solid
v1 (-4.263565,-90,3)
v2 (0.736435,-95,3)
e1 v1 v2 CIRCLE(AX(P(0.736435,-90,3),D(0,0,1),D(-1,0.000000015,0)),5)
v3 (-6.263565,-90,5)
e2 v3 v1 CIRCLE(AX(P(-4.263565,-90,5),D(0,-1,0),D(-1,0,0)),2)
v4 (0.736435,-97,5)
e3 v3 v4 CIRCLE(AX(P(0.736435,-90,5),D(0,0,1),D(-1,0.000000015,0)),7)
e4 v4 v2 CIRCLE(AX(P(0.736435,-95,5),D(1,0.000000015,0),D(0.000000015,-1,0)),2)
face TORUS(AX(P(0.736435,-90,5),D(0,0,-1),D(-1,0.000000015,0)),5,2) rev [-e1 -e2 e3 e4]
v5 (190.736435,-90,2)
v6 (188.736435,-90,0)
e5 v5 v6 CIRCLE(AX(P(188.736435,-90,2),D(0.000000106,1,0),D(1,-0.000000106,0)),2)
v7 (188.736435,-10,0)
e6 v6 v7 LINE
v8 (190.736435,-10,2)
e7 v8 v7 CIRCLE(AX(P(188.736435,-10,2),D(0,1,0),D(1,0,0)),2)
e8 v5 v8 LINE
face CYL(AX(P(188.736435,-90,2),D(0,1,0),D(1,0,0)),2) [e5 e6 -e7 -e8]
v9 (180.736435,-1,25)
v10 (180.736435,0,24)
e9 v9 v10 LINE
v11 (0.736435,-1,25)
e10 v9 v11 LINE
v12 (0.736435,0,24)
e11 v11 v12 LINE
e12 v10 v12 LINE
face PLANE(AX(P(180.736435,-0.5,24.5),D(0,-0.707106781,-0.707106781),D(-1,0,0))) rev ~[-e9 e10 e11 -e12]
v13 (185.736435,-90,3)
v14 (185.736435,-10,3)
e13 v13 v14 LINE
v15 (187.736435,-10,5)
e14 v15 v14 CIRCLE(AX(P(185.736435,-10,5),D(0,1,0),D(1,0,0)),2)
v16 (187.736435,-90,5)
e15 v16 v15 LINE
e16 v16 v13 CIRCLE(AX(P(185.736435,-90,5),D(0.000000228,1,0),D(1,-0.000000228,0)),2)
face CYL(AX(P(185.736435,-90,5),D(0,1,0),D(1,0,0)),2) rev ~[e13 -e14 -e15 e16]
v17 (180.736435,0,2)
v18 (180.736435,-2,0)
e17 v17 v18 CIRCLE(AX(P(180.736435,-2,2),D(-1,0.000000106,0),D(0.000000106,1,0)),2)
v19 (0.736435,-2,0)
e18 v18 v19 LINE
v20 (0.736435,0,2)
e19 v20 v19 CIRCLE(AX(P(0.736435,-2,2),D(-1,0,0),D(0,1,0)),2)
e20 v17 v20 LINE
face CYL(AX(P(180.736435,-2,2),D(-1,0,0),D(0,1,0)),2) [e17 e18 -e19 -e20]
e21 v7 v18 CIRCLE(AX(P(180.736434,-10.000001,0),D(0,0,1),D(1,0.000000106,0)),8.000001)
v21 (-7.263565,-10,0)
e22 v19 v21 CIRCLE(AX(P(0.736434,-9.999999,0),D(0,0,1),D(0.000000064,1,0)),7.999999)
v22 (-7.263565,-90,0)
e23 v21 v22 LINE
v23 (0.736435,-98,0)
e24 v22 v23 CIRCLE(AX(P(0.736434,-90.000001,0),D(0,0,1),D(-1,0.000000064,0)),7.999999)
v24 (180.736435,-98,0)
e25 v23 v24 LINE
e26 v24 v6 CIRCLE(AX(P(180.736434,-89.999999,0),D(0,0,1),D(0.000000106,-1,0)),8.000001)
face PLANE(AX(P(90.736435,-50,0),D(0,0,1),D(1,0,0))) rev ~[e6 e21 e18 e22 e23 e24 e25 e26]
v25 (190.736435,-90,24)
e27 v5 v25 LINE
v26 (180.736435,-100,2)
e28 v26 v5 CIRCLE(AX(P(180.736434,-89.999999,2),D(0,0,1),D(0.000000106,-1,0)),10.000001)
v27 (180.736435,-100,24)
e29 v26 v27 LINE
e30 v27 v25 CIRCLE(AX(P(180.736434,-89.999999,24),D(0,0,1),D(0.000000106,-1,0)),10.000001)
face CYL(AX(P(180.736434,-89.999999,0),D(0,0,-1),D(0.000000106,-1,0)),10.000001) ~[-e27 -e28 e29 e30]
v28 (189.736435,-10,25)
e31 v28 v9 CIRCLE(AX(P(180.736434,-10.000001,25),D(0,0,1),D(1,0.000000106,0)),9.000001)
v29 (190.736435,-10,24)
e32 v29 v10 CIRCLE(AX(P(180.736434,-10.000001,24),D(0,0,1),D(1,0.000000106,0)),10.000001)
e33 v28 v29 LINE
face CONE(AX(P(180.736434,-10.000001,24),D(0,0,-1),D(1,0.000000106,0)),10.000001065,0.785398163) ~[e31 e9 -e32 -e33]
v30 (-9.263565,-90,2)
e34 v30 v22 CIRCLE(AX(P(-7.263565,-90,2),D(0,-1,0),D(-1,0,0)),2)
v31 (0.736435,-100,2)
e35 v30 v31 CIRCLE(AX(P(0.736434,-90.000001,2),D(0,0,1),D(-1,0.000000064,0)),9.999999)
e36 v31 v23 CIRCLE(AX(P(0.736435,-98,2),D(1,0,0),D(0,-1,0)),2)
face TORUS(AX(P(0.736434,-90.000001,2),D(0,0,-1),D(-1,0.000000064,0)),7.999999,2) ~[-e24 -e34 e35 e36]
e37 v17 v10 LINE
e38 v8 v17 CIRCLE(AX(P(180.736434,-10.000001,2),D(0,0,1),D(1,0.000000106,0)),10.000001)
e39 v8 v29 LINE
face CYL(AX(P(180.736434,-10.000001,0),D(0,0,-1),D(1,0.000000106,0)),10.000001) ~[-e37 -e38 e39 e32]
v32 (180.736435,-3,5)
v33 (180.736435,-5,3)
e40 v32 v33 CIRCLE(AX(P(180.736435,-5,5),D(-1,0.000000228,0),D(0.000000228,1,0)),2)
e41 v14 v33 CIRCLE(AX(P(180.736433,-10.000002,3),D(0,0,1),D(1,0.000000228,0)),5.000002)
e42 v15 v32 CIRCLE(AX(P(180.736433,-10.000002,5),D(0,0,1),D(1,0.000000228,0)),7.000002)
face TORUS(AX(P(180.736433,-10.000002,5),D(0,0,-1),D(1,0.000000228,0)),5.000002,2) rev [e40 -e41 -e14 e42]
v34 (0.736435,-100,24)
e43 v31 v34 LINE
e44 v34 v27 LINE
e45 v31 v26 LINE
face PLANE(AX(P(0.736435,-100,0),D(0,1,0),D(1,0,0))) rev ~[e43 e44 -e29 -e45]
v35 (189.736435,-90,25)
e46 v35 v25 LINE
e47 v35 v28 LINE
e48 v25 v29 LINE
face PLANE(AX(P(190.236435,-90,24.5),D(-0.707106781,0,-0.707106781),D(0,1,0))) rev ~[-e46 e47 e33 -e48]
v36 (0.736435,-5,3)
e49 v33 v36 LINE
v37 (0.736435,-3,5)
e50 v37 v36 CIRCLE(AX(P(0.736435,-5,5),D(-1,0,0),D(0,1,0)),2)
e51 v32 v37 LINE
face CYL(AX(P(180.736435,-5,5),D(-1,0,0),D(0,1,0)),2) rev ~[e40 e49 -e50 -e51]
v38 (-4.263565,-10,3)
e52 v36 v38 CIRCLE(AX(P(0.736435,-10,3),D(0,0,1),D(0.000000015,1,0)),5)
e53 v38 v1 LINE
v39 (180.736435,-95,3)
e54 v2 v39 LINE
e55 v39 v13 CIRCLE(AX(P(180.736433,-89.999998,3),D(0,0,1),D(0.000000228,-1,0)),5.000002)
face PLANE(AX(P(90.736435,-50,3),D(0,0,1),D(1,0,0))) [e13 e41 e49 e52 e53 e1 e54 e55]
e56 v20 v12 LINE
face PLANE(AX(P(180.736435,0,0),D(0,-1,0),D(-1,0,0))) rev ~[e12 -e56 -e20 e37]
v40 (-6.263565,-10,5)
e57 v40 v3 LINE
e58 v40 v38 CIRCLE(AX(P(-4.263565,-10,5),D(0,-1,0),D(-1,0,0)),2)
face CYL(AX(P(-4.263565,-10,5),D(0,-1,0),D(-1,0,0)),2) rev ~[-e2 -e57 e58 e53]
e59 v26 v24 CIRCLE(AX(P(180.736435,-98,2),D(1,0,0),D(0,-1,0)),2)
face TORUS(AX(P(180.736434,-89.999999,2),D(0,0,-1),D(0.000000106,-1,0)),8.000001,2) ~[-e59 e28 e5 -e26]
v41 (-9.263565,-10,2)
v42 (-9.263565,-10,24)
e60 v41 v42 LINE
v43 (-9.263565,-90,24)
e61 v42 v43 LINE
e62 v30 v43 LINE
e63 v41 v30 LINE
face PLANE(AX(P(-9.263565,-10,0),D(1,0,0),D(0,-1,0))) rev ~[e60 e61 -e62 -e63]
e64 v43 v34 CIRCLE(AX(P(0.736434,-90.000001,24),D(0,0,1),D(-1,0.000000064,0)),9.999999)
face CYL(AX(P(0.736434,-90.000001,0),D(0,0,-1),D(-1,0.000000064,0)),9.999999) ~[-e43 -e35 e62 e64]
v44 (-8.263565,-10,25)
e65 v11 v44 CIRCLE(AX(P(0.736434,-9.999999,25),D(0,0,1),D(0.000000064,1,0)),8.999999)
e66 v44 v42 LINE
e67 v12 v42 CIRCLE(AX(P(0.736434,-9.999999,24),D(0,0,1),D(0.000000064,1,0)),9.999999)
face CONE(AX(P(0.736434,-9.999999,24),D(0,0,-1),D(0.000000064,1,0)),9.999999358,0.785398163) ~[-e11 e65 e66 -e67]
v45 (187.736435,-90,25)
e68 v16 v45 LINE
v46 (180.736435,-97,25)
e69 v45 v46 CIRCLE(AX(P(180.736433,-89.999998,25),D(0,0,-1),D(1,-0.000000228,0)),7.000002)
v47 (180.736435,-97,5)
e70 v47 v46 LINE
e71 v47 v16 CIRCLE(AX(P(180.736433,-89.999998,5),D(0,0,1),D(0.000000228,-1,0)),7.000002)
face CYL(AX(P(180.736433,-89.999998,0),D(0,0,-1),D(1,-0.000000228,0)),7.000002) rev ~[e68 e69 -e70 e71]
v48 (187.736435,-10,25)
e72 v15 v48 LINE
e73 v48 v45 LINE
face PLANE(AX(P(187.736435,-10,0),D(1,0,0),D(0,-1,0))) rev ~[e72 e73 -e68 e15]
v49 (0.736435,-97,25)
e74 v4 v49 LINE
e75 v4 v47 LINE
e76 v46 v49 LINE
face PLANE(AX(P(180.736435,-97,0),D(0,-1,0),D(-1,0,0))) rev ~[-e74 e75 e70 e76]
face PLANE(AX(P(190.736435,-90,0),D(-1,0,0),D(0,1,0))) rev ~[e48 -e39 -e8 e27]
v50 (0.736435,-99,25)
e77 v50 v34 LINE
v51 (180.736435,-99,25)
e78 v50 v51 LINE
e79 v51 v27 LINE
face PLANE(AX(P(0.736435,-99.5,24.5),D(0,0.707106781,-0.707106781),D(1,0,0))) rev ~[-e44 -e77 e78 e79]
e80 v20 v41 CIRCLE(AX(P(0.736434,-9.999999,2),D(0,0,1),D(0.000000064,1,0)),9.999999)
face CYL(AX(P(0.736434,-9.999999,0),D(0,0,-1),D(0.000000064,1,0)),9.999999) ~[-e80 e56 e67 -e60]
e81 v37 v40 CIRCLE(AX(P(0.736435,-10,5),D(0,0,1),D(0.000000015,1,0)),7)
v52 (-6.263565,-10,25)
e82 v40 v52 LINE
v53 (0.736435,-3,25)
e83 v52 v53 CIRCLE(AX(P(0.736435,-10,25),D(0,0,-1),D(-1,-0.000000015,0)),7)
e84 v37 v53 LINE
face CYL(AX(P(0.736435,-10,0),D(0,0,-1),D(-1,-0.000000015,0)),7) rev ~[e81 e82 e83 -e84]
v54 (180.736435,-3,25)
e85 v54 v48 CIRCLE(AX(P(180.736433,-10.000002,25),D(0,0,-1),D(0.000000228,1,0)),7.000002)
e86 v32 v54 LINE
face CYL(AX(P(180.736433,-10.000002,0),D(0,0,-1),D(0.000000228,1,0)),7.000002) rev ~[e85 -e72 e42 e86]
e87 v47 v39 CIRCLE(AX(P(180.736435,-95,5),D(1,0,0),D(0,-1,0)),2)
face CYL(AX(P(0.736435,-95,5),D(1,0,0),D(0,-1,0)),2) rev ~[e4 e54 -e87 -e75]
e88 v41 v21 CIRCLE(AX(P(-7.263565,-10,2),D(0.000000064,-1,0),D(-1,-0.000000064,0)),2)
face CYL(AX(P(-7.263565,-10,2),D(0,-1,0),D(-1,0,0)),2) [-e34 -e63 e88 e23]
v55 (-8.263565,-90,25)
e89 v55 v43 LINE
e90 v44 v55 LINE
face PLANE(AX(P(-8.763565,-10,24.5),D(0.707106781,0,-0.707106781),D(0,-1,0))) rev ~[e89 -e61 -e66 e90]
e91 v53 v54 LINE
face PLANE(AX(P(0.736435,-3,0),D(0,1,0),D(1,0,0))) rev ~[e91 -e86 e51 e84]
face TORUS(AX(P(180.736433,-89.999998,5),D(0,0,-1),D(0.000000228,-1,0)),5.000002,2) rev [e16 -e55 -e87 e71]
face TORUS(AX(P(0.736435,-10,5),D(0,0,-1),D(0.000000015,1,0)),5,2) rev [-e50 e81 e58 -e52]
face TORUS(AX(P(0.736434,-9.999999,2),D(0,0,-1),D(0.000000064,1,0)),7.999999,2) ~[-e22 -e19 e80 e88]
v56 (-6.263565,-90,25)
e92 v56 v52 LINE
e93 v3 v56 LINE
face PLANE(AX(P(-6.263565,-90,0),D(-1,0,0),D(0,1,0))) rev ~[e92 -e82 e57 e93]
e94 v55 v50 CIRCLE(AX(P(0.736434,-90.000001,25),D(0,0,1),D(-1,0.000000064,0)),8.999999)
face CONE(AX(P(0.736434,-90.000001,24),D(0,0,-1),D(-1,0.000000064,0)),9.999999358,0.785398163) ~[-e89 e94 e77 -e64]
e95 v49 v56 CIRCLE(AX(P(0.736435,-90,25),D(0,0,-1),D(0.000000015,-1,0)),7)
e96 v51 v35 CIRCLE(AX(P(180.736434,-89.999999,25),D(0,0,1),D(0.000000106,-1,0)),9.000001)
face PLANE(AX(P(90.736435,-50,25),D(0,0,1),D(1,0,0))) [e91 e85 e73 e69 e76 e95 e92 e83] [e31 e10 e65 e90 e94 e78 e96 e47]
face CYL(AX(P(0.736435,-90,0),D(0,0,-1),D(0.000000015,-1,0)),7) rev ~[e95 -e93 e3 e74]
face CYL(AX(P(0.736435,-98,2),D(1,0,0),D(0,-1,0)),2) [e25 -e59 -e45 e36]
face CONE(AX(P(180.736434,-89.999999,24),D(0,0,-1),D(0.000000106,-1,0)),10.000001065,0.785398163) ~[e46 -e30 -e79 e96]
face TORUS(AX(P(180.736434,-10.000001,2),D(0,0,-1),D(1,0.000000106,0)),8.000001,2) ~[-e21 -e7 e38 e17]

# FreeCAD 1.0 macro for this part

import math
import FreeCAD as App
import Part
import Sketcher
from FreeCAD import Vector


def edges_at(feature, points):
    """Names of the edges that pass closest to the given points."""
    edges = feature.Shape.Edges
    near = lambda p: min(range(len(edges)), key=lambda i: edges[i].distToShape(Part.Vertex(*p))[0])
    return sorted({f"Edge{near(p) + 1}" for p in points})

doc = App.newDocument("Part")
body = doc.addObject("PartDesign::Body", "Body")

# Sketch on XY plane
sketch1 = body.newObject("Sketcher::SketchObject", "Sketch")
sketch1.AttachmentSupport = (doc.getObject("XY_Plane"), [""])
sketch1.MapMode = "FlatFace"
sketch1.addGeometry(Part.LineSegment(Vector(181, 0, 0), Vector(1, 0, 0)), False)
sketch1.addGeometry(Part.ArcOfCircle(Part.Circle(Vector(1, -10, 0), Vector(0, 0, 1), 10), math.radians(90), math.radians(180)), False)
sketch1.addGeometry(Part.LineSegment(Vector(-9, -10, 0), Vector(-9, -90, 0)), False)
sketch1.addGeometry(Part.ArcOfCircle(Part.Circle(Vector(1, -90, 0), Vector(0, 0, 1), 10), math.radians(180), math.radians(270)), False)
sketch1.addGeometry(Part.LineSegment(Vector(1, -100, 0), Vector(181, -100, 0)), False)
sketch1.addGeometry(Part.ArcOfCircle(Part.Circle(Vector(181, -90, 0), Vector(0, 0, 1), 10), math.radians(-90), math.radians(0)), False)
sketch1.addGeometry(Part.LineSegment(Vector(191, -90, 0), Vector(191, -10, 0)), False)
sketch1.addGeometry(Part.ArcOfCircle(Part.Circle(Vector(181, -10, 0), Vector(0, 0, 1), 10), math.radians(0), math.radians(90)), False)
sketch1.addGeometry(Part.LineSegment(Vector(-6, -90, 0), Vector(-6, -10, 0)), False)
sketch1.addGeometry(Part.ArcOfCircle(Part.Circle(Vector(1, -10, 0), Vector(0, 0, 1), 7), math.radians(90), math.radians(180)), False)
sketch1.addGeometry(Part.LineSegment(Vector(1, -3, 0), Vector(181, -3, 0)), False)
sketch1.addGeometry(Part.ArcOfCircle(Part.Circle(Vector(181, -10, 0), Vector(0, 0, 1), 7), math.radians(0), math.radians(90)), False)
sketch1.addGeometry(Part.LineSegment(Vector(188, -10, 0), Vector(188, -90, 0)), False)
sketch1.addGeometry(Part.ArcOfCircle(Part.Circle(Vector(181, -90, 0), Vector(0, 0, 1), 7), math.radians(-90), math.radians(0)), False)
sketch1.addGeometry(Part.LineSegment(Vector(181, -97, 0), Vector(1, -97, 0)), False)
sketch1.addGeometry(Part.ArcOfCircle(Part.Circle(Vector(1, -90, 0), Vector(0, 0, 1), 7), math.radians(180), math.radians(270)), False)
sketch1.addConstraint(Sketcher.Constraint("Tangent", 0, 2, 1, 1))
sketch1.addConstraint(Sketcher.Constraint("Tangent", 1, 2, 2, 1))
sketch1.addConstraint(Sketcher.Constraint("Tangent", 2, 2, 3, 1))
sketch1.addConstraint(Sketcher.Constraint("Tangent", 3, 2, 4, 1))
sketch1.addConstraint(Sketcher.Constraint("Tangent", 4, 2, 5, 1))
sketch1.addConstraint(Sketcher.Constraint("Tangent", 5, 2, 6, 1))
sketch1.addConstraint(Sketcher.Constraint("Tangent", 6, 2, 7, 1))
sketch1.addConstraint(Sketcher.Constraint("Tangent", 7, 2, 0, 1))
sketch1.addConstraint(Sketcher.Constraint("Tangent", 8, 2, 9, 2))
sketch1.addConstraint(Sketcher.Constraint("Tangent", 9, 1, 10, 1))
sketch1.addConstraint(Sketcher.Constraint("Tangent", 10, 2, 11, 2))
sketch1.addConstraint(Sketcher.Constraint("Tangent", 11, 1, 12, 1))
sketch1.addConstraint(Sketcher.Constraint("Tangent", 12, 2, 13, 2))
sketch1.addConstraint(Sketcher.Constraint("Tangent", 13, 1, 14, 1))
sketch1.addConstraint(Sketcher.Constraint("Tangent", 14, 2, 15, 2))
sketch1.addConstraint(Sketcher.Constraint("Tangent", 15, 1, 8, 1))
sketch1.addConstraint(Sketcher.Constraint("Horizontal", 0))
sketch1.addConstraint(Sketcher.Constraint("Vertical", 2))
sketch1.addConstraint(Sketcher.Constraint("Horizontal", 4))
sketch1.addConstraint(Sketcher.Constraint("Vertical", 6))
sketch1.addConstraint(Sketcher.Constraint("Vertical", 8))
sketch1.addConstraint(Sketcher.Constraint("Horizontal", 10))
sketch1.addConstraint(Sketcher.Constraint("Vertical", 12))
sketch1.addConstraint(Sketcher.Constraint("Horizontal", 14))
sketch1.addConstraint(Sketcher.Constraint("Coincident", 9, 3, 1, 3))
sketch1.addConstraint(Sketcher.Constraint("Coincident", 11, 3, 7, 3))
sketch1.addConstraint(Sketcher.Constraint("Coincident", 13, 3, 5, 3))
sketch1.addConstraint(Sketcher.Constraint("Equal", 1, 3))
sketch1.addConstraint(Sketcher.Constraint("Equal", 3, 5))
sketch1.addConstraint(Sketcher.Constraint("Equal", 5, 7))
sketch1.addConstraint(Sketcher.Constraint("Equal", 13, 15))
sketch1.addConstraint(Sketcher.Constraint("PointOnObject", 0, 2, -1))
sketch1.addConstraint(Sketcher.Constraint("Radius", 1, 9.999999))
sketch1.addConstraint(Sketcher.Constraint("Radius", 9, 7.0))
sketch1.addConstraint(Sketcher.Constraint("DistanceX", 0, 2, 0, 1, 180.0))
sketch1.addConstraint(Sketcher.Constraint("DistanceY", 2, 2, 2, 1, 80.0))
sketch1.addConstraint(Sketcher.Constraint("DistanceX", -1, 1, 1, 3, 0.736434))
pad1 = body.newObject("PartDesign::Pad", "Pad")
pad1.Profile = sketch1
pad1.Length = 25

# Sketch on XY plane
sketch2 = body.newObject("Sketcher::SketchObject", "Sketch001")
sketch2.AttachmentSupport = (doc.getObject("XY_Plane"), [""])
sketch2.MapMode = "FlatFace"
sketch2.addGeometry(Part.LineSegment(Vector(181, -3, 0), Vector(1, -3, 0)), False)
sketch2.addGeometry(Part.ArcOfCircle(Part.Circle(Vector(1, -10, 0), Vector(0, 0, 1), 7), math.radians(90), math.radians(180)), False)
sketch2.addGeometry(Part.LineSegment(Vector(-6, -10, 0), Vector(-6, -90, 0)), False)
sketch2.addGeometry(Part.ArcOfCircle(Part.Circle(Vector(1, -90, 0), Vector(0, 0, 1), 7), math.radians(180), math.radians(270)), False)
sketch2.addGeometry(Part.LineSegment(Vector(1, -97, 0), Vector(181, -97, 0)), False)
sketch2.addGeometry(Part.ArcOfCircle(Part.Circle(Vector(181, -90, 0), Vector(0, 0, 1), 7), math.radians(-90), math.radians(0)), False)
sketch2.addGeometry(Part.LineSegment(Vector(188, -90, 0), Vector(188, -10, 0)), False)
sketch2.addGeometry(Part.ArcOfCircle(Part.Circle(Vector(181, -10, 0), Vector(0, 0, 1), 7), math.radians(0), math.radians(90)), False)
sketch2.addConstraint(Sketcher.Constraint("Tangent", 0, 2, 1, 1))
sketch2.addConstraint(Sketcher.Constraint("Tangent", 1, 2, 2, 1))
sketch2.addConstraint(Sketcher.Constraint("Tangent", 2, 2, 3, 1))
sketch2.addConstraint(Sketcher.Constraint("Tangent", 3, 2, 4, 1))
sketch2.addConstraint(Sketcher.Constraint("Tangent", 4, 2, 5, 1))
sketch2.addConstraint(Sketcher.Constraint("Tangent", 5, 2, 6, 1))
sketch2.addConstraint(Sketcher.Constraint("Tangent", 6, 2, 7, 1))
sketch2.addConstraint(Sketcher.Constraint("Tangent", 7, 2, 0, 1))
sketch2.addConstraint(Sketcher.Constraint("Horizontal", 0))
sketch2.addConstraint(Sketcher.Constraint("Vertical", 2))
sketch2.addConstraint(Sketcher.Constraint("Horizontal", 4))
sketch2.addConstraint(Sketcher.Constraint("Vertical", 6))
sketch2.addConstraint(Sketcher.Constraint("Equal", 1, 3))
sketch2.addConstraint(Sketcher.Constraint("Equal", 3, 5))
sketch2.addConstraint(Sketcher.Constraint("Equal", 5, 7))
sketch2.addConstraint(Sketcher.Constraint("Radius", 1, 7.0))
sketch2.addConstraint(Sketcher.Constraint("DistanceX", 0, 2, 0, 1, 180.0))
sketch2.addConstraint(Sketcher.Constraint("DistanceY", 2, 2, 2, 1, 80.0))
sketch2.addConstraint(Sketcher.Constraint("DistanceY", 1, 3, -1, 1, 10.0))
sketch2.addConstraint(Sketcher.Constraint("DistanceX", -1, 1, 1, 3, 0.736435))
pad2 = body.newObject("PartDesign::Pad", "Pad001")
pad2.Profile = sketch2
pad2.Length = 3
doc.recompute()

fillet = body.newObject("PartDesign::Fillet", "Fillet")
fillet.Base = (pad2, edges_at(pad2, [
    (-6.264, -50, 3),
    (-4.213, -5.05, 3),
    (90.736, -3, 3),
    (-4.213, -94.95, 3),
    (90.736, -97, 3),
    (185.686, -94.95, 3),
    (187.736, -50, 3),
    (185.686, -5.05, 3),
]))
fillet.Radius = 2
doc.recompute()

fillet2 = body.newObject("PartDesign::Fillet", "Fillet001")
fillet2.Base = (fillet, edges_at(fillet, [
    (90.736, -100, 0),
    (187.808, -2.929, 0),
    (90.736, 0, 0),
    (-6.335, -2.929, 0),
    (-9.264, -50, 0),
    (-6.335, -97.071, 0),
    (187.808, -97.071, 0),
    (190.736, -50, 0),
]))
fillet2.Radius = 2
doc.recompute()

chamfer = body.newObject("PartDesign::Chamfer", "Chamfer")
chamfer.Base = (fillet2, edges_at(fillet2, [
    (-9.264, -50, 25),
    (-6.335, -97.071, 25),
    (90.736, -100, 25),
    (187.808, -97.071, 25),
    (190.736, -50, 25),
    (187.808, -2.929, 25),
    (90.736, 0, 25),
]))
chamfer.Size = 1

doc.recompute()
